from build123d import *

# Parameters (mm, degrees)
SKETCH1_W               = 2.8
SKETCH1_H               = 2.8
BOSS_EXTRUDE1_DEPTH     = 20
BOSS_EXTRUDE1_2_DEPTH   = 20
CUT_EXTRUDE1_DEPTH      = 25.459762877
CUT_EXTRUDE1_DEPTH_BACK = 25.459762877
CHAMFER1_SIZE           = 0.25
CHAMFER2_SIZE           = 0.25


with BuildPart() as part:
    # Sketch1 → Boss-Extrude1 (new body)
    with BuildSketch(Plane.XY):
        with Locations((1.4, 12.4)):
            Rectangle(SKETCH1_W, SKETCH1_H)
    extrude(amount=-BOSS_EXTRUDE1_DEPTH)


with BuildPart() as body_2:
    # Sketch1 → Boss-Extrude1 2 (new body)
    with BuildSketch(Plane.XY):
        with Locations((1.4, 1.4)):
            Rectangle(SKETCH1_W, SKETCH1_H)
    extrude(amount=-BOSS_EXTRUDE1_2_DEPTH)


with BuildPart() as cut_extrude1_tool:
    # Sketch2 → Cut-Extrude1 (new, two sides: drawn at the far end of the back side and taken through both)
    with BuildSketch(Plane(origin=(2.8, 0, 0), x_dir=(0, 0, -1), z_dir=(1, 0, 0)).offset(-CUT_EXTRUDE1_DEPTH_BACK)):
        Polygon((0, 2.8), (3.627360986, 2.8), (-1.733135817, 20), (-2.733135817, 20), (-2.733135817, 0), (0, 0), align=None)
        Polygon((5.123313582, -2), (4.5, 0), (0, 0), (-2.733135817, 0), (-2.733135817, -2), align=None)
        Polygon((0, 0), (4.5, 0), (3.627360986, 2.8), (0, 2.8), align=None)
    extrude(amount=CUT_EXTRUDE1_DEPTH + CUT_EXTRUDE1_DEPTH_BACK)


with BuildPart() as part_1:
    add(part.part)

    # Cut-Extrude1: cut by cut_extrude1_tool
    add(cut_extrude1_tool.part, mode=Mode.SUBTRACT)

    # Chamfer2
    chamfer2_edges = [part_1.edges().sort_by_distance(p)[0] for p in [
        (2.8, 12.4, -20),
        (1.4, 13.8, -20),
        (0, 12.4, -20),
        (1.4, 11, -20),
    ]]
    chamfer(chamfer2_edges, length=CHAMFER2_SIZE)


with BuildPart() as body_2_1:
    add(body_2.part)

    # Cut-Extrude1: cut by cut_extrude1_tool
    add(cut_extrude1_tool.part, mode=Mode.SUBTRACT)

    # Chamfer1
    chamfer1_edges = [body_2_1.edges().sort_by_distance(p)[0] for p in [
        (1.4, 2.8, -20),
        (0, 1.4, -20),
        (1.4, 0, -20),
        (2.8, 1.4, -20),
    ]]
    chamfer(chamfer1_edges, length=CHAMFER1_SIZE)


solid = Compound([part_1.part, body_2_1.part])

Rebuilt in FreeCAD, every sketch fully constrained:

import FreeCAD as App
import Part
import Sketcher
Q = App.Units.Quantity


def edges_at(feature, points):
    """Names of the edges that pass closest to the given points."""
    edges = feature.Shape.Edges
    near = lambda p: min(range(len(edges)), key=lambda i: edges[i].distToShape(Part.Vertex(*p))[0])
    return sorted({f"Edge{near(p) + 1}" for p in points})


def add_polygon(sketch, points):
    """Adds a closed chain of lines whose ends are joined by coincident constraints."""
    first, n = sketch.GeometryCount, len(points)
    for a, b in zip(points, points[1:] + points[:1]):
        sketch.addGeometry(Part.LineSegment(App.Vector(*a, 0), App.Vector(*b, 0)), False)
    for i in range(n):
        sketch.addConstraint(Sketcher.Constraint("Coincident", first + i, 2, first + (i + 1) % n, 1))

doc = App.newDocument("Part")
body = doc.addObject("PartDesign::Body", "Body")

# Sketch on XY plane
sketch1 = body.newObject("Sketcher::SketchObject", "Sketch")
sketch1.AttachmentSupport = (doc.getObject("XY_Plane"), [""])
sketch1.MapMode = "FlatFace"
add_polygon(sketch1, [(0, 13.8), (0, 11), (2.8, 11), (2.8, 13.8)])  # lines 0-3
sketch1.addConstraint([
    Sketcher.Constraint("Vertical", 0),
    Sketcher.Constraint("Horizontal", 1),
    Sketcher.Constraint("Vertical", 2),
    Sketcher.Constraint("Horizontal", 3),
    Sketcher.Constraint("PointOnObject", 0, 2, -2),
    Sketcher.Constraint("Equal", 3, 0),
    Sketcher.Constraint("DistanceX", 1, 1, 1, 2, 2.8),
    Sketcher.Constraint("DistanceY", -1, 1, 0, 2, 11.0),
])
pad1 = body.newObject("PartDesign::Pad", "Pad")
pad1.Profile = sketch1
pad1.Length = 20
pad1.Reversed = True
body2 = doc.addObject("PartDesign::Body", "Body001")

# Sketch on XY plane
sketch2 = body2.newObject("Sketcher::SketchObject", "Sketch001")
sketch2.AttachmentSupport = (doc.getObject("XY_Plane001"), [""])
sketch2.MapMode = "FlatFace"
add_polygon(sketch2, [(0, 2.8), (0, 0), (2.8, 0), (2.8, 2.8)])  # lines 0-3
sketch2.addConstraint([
    Sketcher.Constraint("Vertical", 0),
    Sketcher.Constraint("Horizontal", 1),
    Sketcher.Constraint("Vertical", 2),
    Sketcher.Constraint("Horizontal", 3),
    Sketcher.Constraint("Coincident", 0, 2, -1, 1),
    Sketcher.Constraint("Equal", 3, 0),
    Sketcher.Constraint("DistanceX", 1, 1, 1, 2, 2.8),
])
pad2 = body2.newObject("PartDesign::Pad", "Pad001")
pad2.Profile = sketch2
pad2.Length = 20
pad2.Reversed = True
body3 = doc.addObject("PartDesign::Body", "Body002")

# Sketch on YZ plane
sketch3 = body3.newObject("Sketcher::SketchObject", "Sketch002")
sketch3.AttachmentSupport = (doc.getObject("YZ_Plane002"), [""])
sketch3.MapMode = "FlatFace"
sketch3.AttachmentOffset = App.Placement(App.Vector(0, 0, 2.8), App.Rotation())
add_polygon(sketch3, [(2.8, -3.6), (20, 1.7), (20, 2.7), (-2, 2.7), (-2, -5.1), (0, -4.5)])  # lines 0-5
sketch3.addConstraint([
    Sketcher.Constraint("Vertical", 1),
    Sketcher.Constraint("Horizontal", 2),
    Sketcher.Constraint("Vertical", 3),
    Sketcher.Constraint("PointOnObject", 4, 2, -2),
    Sketcher.Constraint("Parallel", 0, 4),
    Sketcher.Constraint("Parallel", 4, 5),
    Sketcher.Constraint("DistanceX", 2, 2, 2, 1, 22.0),
    Sketcher.Constraint("DistanceY", 1, 1, 1, 2, 1.0),
    Sketcher.Constraint("DistanceX", -1, 1, 0, 2, 20.0),
    Sketcher.Constraint("DistanceY", 4, 2, -1, 1, 4.5),
    Sketcher.Constraint("DistanceX", -1, 1, 5, 2, 2.8),
    Sketcher.Constraint("Angle", 0, Q("17.31 deg")),
])
pad3 = body3.newObject("PartDesign::Pad", "Pad002")
pad3.Profile = sketch3
pad3.Type = "TwoLengths"
pad3.Length = 25.459763
pad3.Length2 = 25.459763
doc.recompute()

body4 = doc.addObject("PartDesign::Body", "Body003")
body4.BaseFeature = body3
boolean = body.newObject("PartDesign::Boolean", "Boolean")
boolean.Type = "Cut"
boolean.addObjects([body4])
doc.recompute()

chamfer = body.newObject("PartDesign::Chamfer", "Chamfer")
chamfer.Base = (boolean, edges_at(boolean, [
    (2.8, 12.4, -20),
    (1.4, 13.8, -20),
    (0, 12.4, -20),
    (1.4, 11, -20),
]))
chamfer.Size = 0.25
doc.recompute()

boolean2 = body2.newObject("PartDesign::Boolean", "Boolean001")
boolean2.Type = "Cut"
boolean2.addObjects([body3])
doc.recompute()

chamfer2 = body2.newObject("PartDesign::Chamfer", "Chamfer001")
chamfer2.Base = (boolean2, edges_at(boolean2, [
    (1.4, 2.8, -20),
    (0, 1.4, -20),
    (1.4, 0, -20),
    (2.8, 1.4, -20),
]))
chamfer2.Size = 0.25

doc.recompute()
